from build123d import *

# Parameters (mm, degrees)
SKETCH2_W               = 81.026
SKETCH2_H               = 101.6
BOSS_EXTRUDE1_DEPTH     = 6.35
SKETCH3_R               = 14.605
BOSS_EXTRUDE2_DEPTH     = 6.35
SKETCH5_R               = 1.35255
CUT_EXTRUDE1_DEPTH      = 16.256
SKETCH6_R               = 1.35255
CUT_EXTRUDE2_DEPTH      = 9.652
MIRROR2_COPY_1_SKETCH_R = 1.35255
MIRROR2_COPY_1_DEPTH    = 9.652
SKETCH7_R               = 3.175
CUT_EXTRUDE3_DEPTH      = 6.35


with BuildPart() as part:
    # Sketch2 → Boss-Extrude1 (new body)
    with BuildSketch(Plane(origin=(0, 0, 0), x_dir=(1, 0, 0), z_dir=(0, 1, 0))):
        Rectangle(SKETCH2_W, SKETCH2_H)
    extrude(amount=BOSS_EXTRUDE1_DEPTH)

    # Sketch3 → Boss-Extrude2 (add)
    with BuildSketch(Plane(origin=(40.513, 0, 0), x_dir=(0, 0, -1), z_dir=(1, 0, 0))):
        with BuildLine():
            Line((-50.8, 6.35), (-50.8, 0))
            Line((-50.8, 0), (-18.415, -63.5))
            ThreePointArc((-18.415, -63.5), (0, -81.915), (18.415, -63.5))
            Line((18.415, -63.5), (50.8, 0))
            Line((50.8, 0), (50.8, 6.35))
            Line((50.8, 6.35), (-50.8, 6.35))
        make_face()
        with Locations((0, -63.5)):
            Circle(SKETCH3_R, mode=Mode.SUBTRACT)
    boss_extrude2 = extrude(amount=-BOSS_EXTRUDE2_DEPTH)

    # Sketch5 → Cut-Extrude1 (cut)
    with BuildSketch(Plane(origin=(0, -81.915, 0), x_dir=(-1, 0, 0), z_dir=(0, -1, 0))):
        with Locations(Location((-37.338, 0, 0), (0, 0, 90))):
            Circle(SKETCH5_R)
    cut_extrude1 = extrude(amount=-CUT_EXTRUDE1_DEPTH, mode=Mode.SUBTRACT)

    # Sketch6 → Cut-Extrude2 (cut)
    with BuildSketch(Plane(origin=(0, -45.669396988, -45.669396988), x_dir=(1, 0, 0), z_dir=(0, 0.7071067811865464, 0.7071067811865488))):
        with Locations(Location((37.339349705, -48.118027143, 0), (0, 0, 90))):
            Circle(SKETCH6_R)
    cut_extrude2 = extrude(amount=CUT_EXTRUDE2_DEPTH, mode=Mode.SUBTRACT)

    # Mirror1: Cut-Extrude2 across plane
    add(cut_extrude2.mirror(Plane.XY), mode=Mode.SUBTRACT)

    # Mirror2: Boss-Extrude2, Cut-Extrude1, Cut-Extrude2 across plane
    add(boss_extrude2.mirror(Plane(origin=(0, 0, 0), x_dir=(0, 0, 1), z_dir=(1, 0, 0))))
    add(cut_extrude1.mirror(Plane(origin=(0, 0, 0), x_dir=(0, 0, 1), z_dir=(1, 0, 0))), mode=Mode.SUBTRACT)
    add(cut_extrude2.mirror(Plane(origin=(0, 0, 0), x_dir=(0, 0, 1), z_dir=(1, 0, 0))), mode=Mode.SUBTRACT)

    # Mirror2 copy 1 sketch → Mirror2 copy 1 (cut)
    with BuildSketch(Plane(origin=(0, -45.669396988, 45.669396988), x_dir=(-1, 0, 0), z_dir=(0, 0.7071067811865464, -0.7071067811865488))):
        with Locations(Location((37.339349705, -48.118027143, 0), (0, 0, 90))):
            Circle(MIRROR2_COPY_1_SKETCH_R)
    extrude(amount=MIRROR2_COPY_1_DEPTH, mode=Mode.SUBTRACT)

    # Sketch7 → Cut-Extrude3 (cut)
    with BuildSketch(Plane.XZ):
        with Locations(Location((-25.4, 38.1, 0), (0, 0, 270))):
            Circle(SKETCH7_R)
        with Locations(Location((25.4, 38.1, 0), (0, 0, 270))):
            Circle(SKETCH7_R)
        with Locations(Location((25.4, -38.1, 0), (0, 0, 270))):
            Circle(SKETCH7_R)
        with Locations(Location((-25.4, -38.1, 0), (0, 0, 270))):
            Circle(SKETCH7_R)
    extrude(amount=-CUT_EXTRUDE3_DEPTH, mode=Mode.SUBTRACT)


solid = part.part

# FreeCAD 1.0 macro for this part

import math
import FreeCAD as App
import Part
import Sketcher
from FreeCAD import Vector
Q = App.Units.Quantity


def add_polygon(sketch, points):
    """Adds a closed chain of lines whose ends are joined by coincident constraints."""
    first, n = sketch.GeometryCount, len(points)
    for a, b in zip(points, points[1:] + points[:1]):
        sketch.addGeometry(Part.LineSegment(App.Vector(*a, 0), App.Vector(*b, 0)), False)
    for i in range(n):
        sketch.addConstraint(Sketcher.Constraint("Coincident", first + i, 2, first + (i + 1) % n, 1))

doc = App.newDocument("Part")
params = doc.addObject("Spreadsheet::Sheet", "Params")
for row, (alias, value) in enumerate([
    ("sketch1_height", "4 in"),
    ("sketch1_width", "3.19 in"),
    ("pad1_length", "0.25 in"),
    ("sketch2_diameter", "1.15 in"),
    ("sketch2_height", "4 in"),
    ("sketch2_radius", "0.725 in"),
    ("sketch2_width", "0.25 in"),
    ("pad2_length", "0.25 in"),
    ("pocket1_length", "0.64 in"),
    ("pocket2_length", "0.38 in"),
    ("pocket3_length", "0.38 in"),
    ("sketch6_diameter", "0.25 in"),
    ("pocket4_length", "0.25 in"),
], start=1):
    params.set(f"A{row}", alias)
    params.set(f"B{row}", "=" + value)
    params.setAlias(f"B{row}", alias)

body = doc.addObject("PartDesign::Body", "Body")

# Sketch on XZ plane
sketch1 = body.newObject("Sketcher::SketchObject", "Sketch")
sketch1.AttachmentSupport = (doc.getObject("XZ_Plane"), [""])
sketch1.MapMode = "FlatFace"
add_polygon(sketch1, [(-41, -51), (-41, 51), (41, 51), (41, -51)])  # lines 0-3
sketch1.addConstraint([
    Sketcher.Constraint("Vertical", 0),
    Sketcher.Constraint("Horizontal", 1),
    Sketcher.Constraint("Vertical", 2),
    Sketcher.Constraint("Horizontal", 3),
    Sketcher.Constraint("Symmetric", 0, 2, 2, 2, -1, 1),
    Sketcher.Constraint("DistanceY", 0, 1, 0, 2, Q("4 in")),
    Sketcher.Constraint("DistanceX", 1, 1, 1, 2, Q("3.19 in")),
])
sketch1.setExpression("Constraints[9]", "Params.sketch1_height")
sketch1.setExpression("Constraints[10]", "Params.sketch1_width")
pad1 = body.newObject("PartDesign::Pad", "Pad")
pad1.Profile = sketch1
pad1.setExpression("Length", "Params.pad1_length")
pad1.Reversed = True

# Sketch on YZ plane
sketch2 = body.newObject("Sketcher::SketchObject", "Sketch001")
sketch2.AttachmentSupport = (doc.getObject("YZ_Plane"), [""])
sketch2.MapMode = "FlatFace"
sketch2.AttachmentOffset = App.Placement(Vector(0, 0, 1.595 * 25.4), App.Rotation())
sketch2.addGeometry([
    Part.LineSegment(Vector(6, 51, 0), Vector(0, 51, 0)),  # 0
    Part.LineSegment(Vector(0, 51, 0), Vector(-64, 18, 0)),  # 1
    Part.ArcOfCircle(Part.Circle(Vector(-64, 0, 0), Vector(0, 0, 1), 18), math.radians(90), math.radians(270)),  # 2
    Part.LineSegment(Vector(-64, -18, 0), Vector(0, -51, 0)),  # 3
    Part.LineSegment(Vector(0, -51, 0), Vector(6, -51, 0)),  # 4
    Part.LineSegment(Vector(6, -51, 0), Vector(6, 51, 0)),  # 5
    Part.Circle(Vector(-64, 0, 0), Vector(0, 0, 1), 15),  # 6
], False)
sketch2.addConstraint([
    Sketcher.Constraint("Coincident", 0, 2, 1, 1),
    Sketcher.Constraint("Coincident", 1, 2, 2, 1),
    Sketcher.Constraint("Coincident", 2, 2, 3, 1),
    Sketcher.Constraint("Coincident", 3, 2, 4, 1),
    Sketcher.Constraint("Coincident", 4, 2, 5, 1),
    Sketcher.Constraint("Coincident", 5, 2, 0, 1),
    Sketcher.Constraint("Horizontal", 0),
    Sketcher.Constraint("Horizontal", 4),
    Sketcher.Constraint("Vertical", 5),
    Sketcher.Constraint("Coincident", 6, 3, 2, 3),
    Sketcher.Constraint("Symmetric", 0, 2, 3, 2, -1, 1),
    Sketcher.Constraint("Symmetric", 1, 2, 2, 2, -1),
    Sketcher.Constraint("PointOnObject", 0, 2, -2),
    Sketcher.Constraint("Vertical", 6, 3, 1, 2),
    Sketcher.Constraint("Diameter", 6, Q("1.15 in")),
    Sketcher.Constraint("DistanceY", 5, 1, 5, 2, Q("4 in")),
    Sketcher.Constraint("Radius", 2, Q("0.725 in")),
    Sketcher.Constraint("DistanceX", 0, 2, 0, 1, Q("0.25 in")),
    Sketcher.Constraint("DistanceX", 2, 3, -1, 1, Q("2.5 in")),
])
sketch2.setExpression("Constraints[14]", "Params.sketch2_diameter")
sketch2.setExpression("Constraints[15]", "Params.sketch2_height")
sketch2.setExpression("Constraints[16]", "Params.sketch2_radius")
sketch2.setExpression("Constraints[17]", "Params.sketch2_width")
pad2 = body.newObject("PartDesign::Pad", "Pad001")
pad2.Profile = sketch2
pad2.setExpression("Length", "Params.pad2_length")
pad2.Reversed = True

# Sketch on XZ plane
sketch3 = body.newObject("Sketcher::SketchObject", "Sketch002")
sketch3.AttachmentSupport = (doc.getObject("XZ_Plane"), [""])
sketch3.MapMode = "FlatFace"
sketch3.AttachmentOffset = App.Placement(Vector(0, 0, 3.225 * 25.4), App.Rotation())
sketch3.addGeometry(Part.Circle(Vector(37.3, 0, 0), Vector(0, 0, 1), 1.4), False)
sketch3.addConstraint([
    Sketcher.Constraint("PointOnObject", 0, 3, -1),
    Sketcher.Constraint("Diameter", 0, Q("0.1065 in")),
    Sketcher.Constraint("DistanceX", -1, 1, 0, 3, Q("1.47 in")),
])
pocket1 = body.newObject("PartDesign::Pocket", "Pocket")
pocket1.Profile = sketch3
pocket1.setExpression("Length", "Params.pocket1_length")

# Sketch on an angled plane
sketch4 = body.newObject("Sketcher::SketchObject", "Sketch003")
sketch4.Placement = App.Placement(Vector(0, -45.669397, -45.669397), App.Rotation(Vector(1, 0, 0), Vector(0, 0.707106781, -0.707106781), Vector(0, 0.707106781, 0.707106781), "ZXY"))
sketch4.addGeometry(Part.Circle(Vector(37.3, -48.1, 0), Vector(0, 0, 1), 1.4), False)
sketch4.addConstraint([
    Sketcher.Constraint("Diameter", 0, Q("0.1065 in")),
    Sketcher.Constraint("DistanceX", -1, 1, 0, 3, 37.33935),
    Sketcher.Constraint("DistanceY", 0, 3, -1, 1, 48.118027),
])
pocket2 = body.newObject("PartDesign::Pocket", "Pocket001")
pocket2.Profile = sketch4
pocket2.setExpression("Length", "Params.pocket2_length")
pocket2.Reversed = True
doc.recompute()

mirrored = body.newObject("PartDesign::Mirrored", "Mirrored")
mirrored.Originals = [pocket2]
mirrored.MirrorPlane = (doc.getObject("XY_Plane"), [""])
body.Tip = mirrored
doc.recompute()

mirrored2 = body.newObject("PartDesign::Mirrored", "Mirrored001")
mirrored2.Originals = [pad2, pocket1, pocket2]
mirrored2.MirrorPlane = (doc.getObject("YZ_Plane"), [""])
body.Tip = mirrored2

# Sketch on an angled plane
sketch5 = body.newObject("Sketcher::SketchObject", "Sketch004")
sketch5.Placement = App.Placement(Vector(0, -45.669397, 45.669397), App.Rotation(Vector(-1, 0, 0), Vector(0, 0.707106781, 0.707106781), Vector(0, 0.707106781, -0.707106781), "ZXY"))
sketch5.addGeometry(Part.Circle(Vector(37.3, -48.1, 0), Vector(0, 0, 1), 1.4), False)
sketch5.addConstraint([
    Sketcher.Constraint("Diameter", 0, Q("0.1065 in")),
    Sketcher.Constraint("DistanceX", -1, 1, 0, 3, 37.33935),
    Sketcher.Constraint("DistanceY", 0, 3, -1, 1, 48.118027),
])
pocket3 = body.newObject("PartDesign::Pocket", "Pocket002")
pocket3.Profile = sketch5
pocket3.setExpression("Length", "Params.pocket3_length")
pocket3.Reversed = True

# Sketch on XZ plane
sketch6 = body.newObject("Sketcher::SketchObject", "Sketch005")
sketch6.AttachmentSupport = (doc.getObject("XZ_Plane"), [""])
sketch6.MapMode = "FlatFace"
sketch6.addGeometry([
    Part.Circle(Vector(-25.4, 38.1, 0), Vector(0, 0, 1), 3.2),
    Part.Circle(Vector(25.4, 38.1, 0), Vector(0, 0, 1), 3.2),
    Part.Circle(Vector(25.4, -38.1, 0), Vector(0, 0, 1), 3.2),
    Part.Circle(Vector(-25.4, -38.1, 0), Vector(0, 0, 1), 3.2),
], False)
sketch6.addConstraint([
    Sketcher.Constraint("Equal", 0, 1),
    Sketcher.Constraint("Equal", 1, 2),
    Sketcher.Constraint("Equal", 2, 3),
    Sketcher.Constraint("Symmetric", 0, 3, 2, 3, -1, 1),
    Sketcher.Constraint("Symmetric", 1, 3, 3, 3, -1, 1),
    Sketcher.Constraint("Symmetric", 0, 3, 1, 3, -2),
    Sketcher.Constraint("Diameter", 0, Q("0.25 in")),
    Sketcher.Constraint("DistanceX", 0, 3, -1, 1, Q("1 in")),
    Sketcher.Constraint("DistanceY", 2, 3, 1, 3, Q("3 in")),
])
sketch6.setExpression("Constraints[6]", "Params.sketch6_diameter")
pocket4 = body.newObject("PartDesign::Pocket", "Pocket003")
pocket4.Profile = sketch6
pocket4.setExpression("Length", "Params.pocket4_length")

doc.recompute()
